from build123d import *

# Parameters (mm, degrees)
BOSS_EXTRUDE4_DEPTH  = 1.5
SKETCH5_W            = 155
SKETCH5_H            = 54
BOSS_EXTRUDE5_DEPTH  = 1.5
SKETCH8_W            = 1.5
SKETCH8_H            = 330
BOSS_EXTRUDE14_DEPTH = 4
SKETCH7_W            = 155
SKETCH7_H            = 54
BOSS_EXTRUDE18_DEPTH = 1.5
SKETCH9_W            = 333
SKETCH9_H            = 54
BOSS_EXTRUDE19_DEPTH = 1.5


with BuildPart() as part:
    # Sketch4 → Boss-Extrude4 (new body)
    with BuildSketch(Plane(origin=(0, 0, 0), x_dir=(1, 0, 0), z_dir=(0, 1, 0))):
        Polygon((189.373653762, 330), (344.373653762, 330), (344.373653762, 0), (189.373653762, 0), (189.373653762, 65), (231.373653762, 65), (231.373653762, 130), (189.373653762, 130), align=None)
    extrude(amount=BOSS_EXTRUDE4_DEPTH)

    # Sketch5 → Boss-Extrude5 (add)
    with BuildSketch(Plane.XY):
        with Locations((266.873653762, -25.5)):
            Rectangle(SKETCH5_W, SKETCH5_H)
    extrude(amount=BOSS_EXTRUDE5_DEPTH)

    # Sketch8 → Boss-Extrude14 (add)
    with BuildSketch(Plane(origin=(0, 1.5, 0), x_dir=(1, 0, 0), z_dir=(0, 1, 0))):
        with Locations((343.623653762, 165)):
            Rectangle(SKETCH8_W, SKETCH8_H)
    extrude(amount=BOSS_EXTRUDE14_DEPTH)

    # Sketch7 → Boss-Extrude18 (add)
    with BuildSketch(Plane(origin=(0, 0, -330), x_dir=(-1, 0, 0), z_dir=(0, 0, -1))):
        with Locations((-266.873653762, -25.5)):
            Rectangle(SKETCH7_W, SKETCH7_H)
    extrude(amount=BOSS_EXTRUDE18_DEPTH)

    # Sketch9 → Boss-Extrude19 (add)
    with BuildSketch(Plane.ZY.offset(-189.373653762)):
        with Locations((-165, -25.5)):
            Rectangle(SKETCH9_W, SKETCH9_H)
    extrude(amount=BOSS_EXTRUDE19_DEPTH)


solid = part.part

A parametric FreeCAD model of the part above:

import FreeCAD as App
import Part
import Sketcher

doc = App.newDocument("Part")
body = doc.addObject("PartDesign::Body", "Body")

sketch1 = body.newObject("Sketcher::SketchObject", "Sketch")
sketch1.AttachmentSupport = (doc.getObject("XZ_Plane"), [""])
sketch1.MapMode = "FlatFace"
sketch1.addGeometry([
    Part.LineSegment(App.Vector(344, -330, 0), App.Vector(189, -330, 0)),
    Part.LineSegment(App.Vector(189, -330, 0), App.Vector(189, -130, 0)),
    Part.LineSegment(App.Vector(189, -130, 0), App.Vector(231, -130, 0)),
    Part.LineSegment(App.Vector(231, -130, 0), App.Vector(231, -65, 0)),
    Part.LineSegment(App.Vector(231, -65, 0), App.Vector(189, -65, 0)),
    Part.LineSegment(App.Vector(189, -65, 0), App.Vector(189, 0, 0)),
    Part.LineSegment(App.Vector(189, 0, 0), App.Vector(344, 0, 0)),
    Part.LineSegment(App.Vector(344, 0, 0), App.Vector(344, -330, 0)),
], False)
sketch1.addConstraint([
    Sketcher.Constraint("Coincident", 0, 2, 1, 1),
    Sketcher.Constraint("Coincident", 1, 2, 2, 1),
    Sketcher.Constraint("Coincident", 2, 2, 3, 1),
    Sketcher.Constraint("Coincident", 3, 2, 4, 1),
    Sketcher.Constraint("Coincident", 4, 2, 5, 1),
    Sketcher.Constraint("Coincident", 5, 2, 6, 1),
    Sketcher.Constraint("Coincident", 6, 2, 7, 1),
    Sketcher.Constraint("Coincident", 7, 2, 0, 1),
    Sketcher.Constraint("Horizontal", 0),
    Sketcher.Constraint("Vertical", 1),
    Sketcher.Constraint("Horizontal", 2),
    Sketcher.Constraint("Vertical", 3),
    Sketcher.Constraint("Horizontal", 4),
    Sketcher.Constraint("Vertical", 5),
    Sketcher.Constraint("Horizontal", 6),
    Sketcher.Constraint("Vertical", 7),
    Sketcher.Constraint("PointOnObject", 5, 2, -1),
    Sketcher.Constraint("Vertical", 1, 2, 4, 2),
    Sketcher.Constraint("Equal", 3, 5),
    Sketcher.Constraint("DistanceX", 0, 2, 0, 1, 155.0),
    Sketcher.Constraint("DistanceX", 2, 1, 2, 2, 42.0),
    Sketcher.Constraint("DistanceY", 1, 1, 1, 2, 200.0),
    Sketcher.Constraint("DistanceY", 3, 1, 3, 2, 65.0),
    Sketcher.Constraint("DistanceX", -1, 1, 0, 2, 189.373654),
])
pad1 = body.newObject("PartDesign::Pad", "Pad")
pad1.Profile = sketch1
pad1.Length = 1.5
pad1.Reversed = True

sketch2 = body.newObject("Sketcher::SketchObject", "Sketch001")
sketch2.AttachmentSupport = (doc.getObject("XY_Plane"), [""])
sketch2.MapMode = "FlatFace"
sketch2.addGeometry([
    Part.LineSegment(App.Vector(189, 2, 0), App.Vector(189, -52, 0)),
    Part.LineSegment(App.Vector(189, -52, 0), App.Vector(344, -52, 0)),
    Part.LineSegment(App.Vector(344, -52, 0), App.Vector(344, 2, 0)),
    Part.LineSegment(App.Vector(344, 2, 0), App.Vector(189, 2, 0)),
], False)
sketch2.addConstraint([
    Sketcher.Constraint("Coincident", 0, 2, 1, 1),
    Sketcher.Constraint("Coincident", 1, 2, 2, 1),
    Sketcher.Constraint("Coincident", 2, 2, 3, 1),
    Sketcher.Constraint("Coincident", 3, 2, 0, 1),
    Sketcher.Constraint("Vertical", 0),
    Sketcher.Constraint("Horizontal", 1),
    Sketcher.Constraint("Vertical", 2),
    Sketcher.Constraint("Horizontal", 3),
    Sketcher.Constraint("DistanceX", 1, 1, 1, 2, 155.0),
    Sketcher.Constraint("DistanceY", 0, 2, 0, 1, 54.0),
    Sketcher.Constraint("DistanceY", 0, 2, -1, 1, 52.5),
    Sketcher.Constraint("DistanceX", -1, 1, 0, 2, 189.373654),
])
pad2 = body.newObject("PartDesign::Pad", "Pad001")
pad2.Profile = sketch2
pad2.Length = 1.5

sketch3 = body.newObject("Sketcher::SketchObject", "Sketch002")
sketch3.AttachmentSupport = (doc.getObject("XZ_Plane"), [""])
sketch3.MapMode = "FlatFace"
sketch3.AttachmentOffset = App.Placement(App.Vector(0, 0, -1.5), App.Rotation())
sketch3.addGeometry([
    Part.LineSegment(App.Vector(342.9, -330, 0), App.Vector(342.9, 0, 0)),
    Part.LineSegment(App.Vector(342.9, 0, 0), App.Vector(344.4, 0, 0)),
    Part.LineSegment(App.Vector(344.4, 0, 0), App.Vector(344.4, -330, 0)),
    Part.LineSegment(App.Vector(344.4, -330, 0), App.Vector(342.9, -330, 0)),
], False)
sketch3.addConstraint([
    Sketcher.Constraint("Coincident", 0, 2, 1, 1),
    Sketcher.Constraint("Coincident", 1, 2, 2, 1),
    Sketcher.Constraint("Coincident", 2, 2, 3, 1),
    Sketcher.Constraint("Coincident", 3, 2, 0, 1),
    Sketcher.Constraint("Vertical", 0),
    Sketcher.Constraint("Horizontal", 1),
    Sketcher.Constraint("Vertical", 2),
    Sketcher.Constraint("Horizontal", 3),
    Sketcher.Constraint("PointOnObject", 0, 2, -1),
    Sketcher.Constraint("DistanceY", 0, 1, 0, 2, 330.0),
    Sketcher.Constraint("DistanceX", 1, 1, 1, 2, 1.5),
    Sketcher.Constraint("DistanceX", -1, 1, 0, 2, 342.873654),
])
pad3 = body.newObject("PartDesign::Pad", "Pad002")
pad3.Profile = sketch3
pad3.Length = 4
pad3.Reversed = True

sketch4 = body.newObject("Sketcher::SketchObject", "Sketch003")
sketch4.AttachmentSupport = (doc.getObject("XY_Plane"), [""])
sketch4.MapMode = "FlatFace"
sketch4.AttachmentOffset = App.Placement(App.Vector(0, 0, -330), App.Rotation())
sketch4.addGeometry([
    Part.LineSegment(App.Vector(344, 2, 0), App.Vector(344, -52, 0)),
    Part.LineSegment(App.Vector(344, -52, 0), App.Vector(189, -52, 0)),
    Part.LineSegment(App.Vector(189, -52, 0), App.Vector(189, 2, 0)),
    Part.LineSegment(App.Vector(189, 2, 0), App.Vector(344, 2, 0)),
], False)
sketch4.addConstraint([
    Sketcher.Constraint("Coincident", 0, 2, 1, 1),
    Sketcher.Constraint("Coincident", 1, 2, 2, 1),
    Sketcher.Constraint("Coincident", 2, 2, 3, 1),
    Sketcher.Constraint("Coincident", 3, 2, 0, 1),
    Sketcher.Constraint("Vertical", 0),
    Sketcher.Constraint("Horizontal", 1),
    Sketcher.Constraint("Vertical", 2),
    Sketcher.Constraint("Horizontal", 3),
    Sketcher.Constraint("DistanceX", 1, 2, 1, 1, 155.0),
    Sketcher.Constraint("DistanceY", 0, 2, 0, 1, 54.0),
    Sketcher.Constraint("DistanceY", 0, 2, -1, 1, 52.5),
    Sketcher.Constraint("DistanceX", -1, 1, 0, 2, 344.373654),
])
pad4 = body.newObject("PartDesign::Pad", "Pad003")
pad4.Profile = sketch4
pad4.Length = 1.5
pad4.Reversed = True

sketch5 = body.newObject("Sketcher::SketchObject", "Sketch004")
sketch5.AttachmentSupport = (doc.getObject("YZ_Plane"), [""])
sketch5.MapMode = "FlatFace"
sketch5.AttachmentOffset = App.Placement(App.Vector(0, 0, 189.373654), App.Rotation())
sketch5.addGeometry([
    Part.LineSegment(App.Vector(2, -332, 0), App.Vector(-52, -332, 0)),
    Part.LineSegment(App.Vector(-52, -332, 0), App.Vector(-52, 2, 0)),
    Part.LineSegment(App.Vector(-52, 2, 0), App.Vector(2, 2, 0)),
    Part.LineSegment(App.Vector(2, 2, 0), App.Vector(2, -332, 0)),
], False)
sketch5.addConstraint([
    Sketcher.Constraint("Coincident", 0, 2, 1, 1),
    Sketcher.Constraint("Coincident", 1, 2, 2, 1),
    Sketcher.Constraint("Coincident", 2, 2, 3, 1),
    Sketcher.Constraint("Coincident", 3, 2, 0, 1),
    Sketcher.Constraint("Horizontal", 0),
    Sketcher.Constraint("Vertical", 1),
    Sketcher.Constraint("Horizontal", 2),
    Sketcher.Constraint("Vertical", 3),
    Sketcher.Constraint("DistanceX", 0, 2, 0, 1, 54.0),
    Sketcher.Constraint("DistanceY", 1, 1, 1, 2, 333.0),
    Sketcher.Constraint("DistanceX", 0, 2, -1, 1, 52.5),
    Sketcher.Constraint("DistanceY", 0, 2, -1, 1, 331.5),
])
pad5 = body.newObject("PartDesign::Pad", "Pad004")
pad5.Profile = sketch5
pad5.Length = 1.5
pad5.Reversed = True

doc.recompute()
